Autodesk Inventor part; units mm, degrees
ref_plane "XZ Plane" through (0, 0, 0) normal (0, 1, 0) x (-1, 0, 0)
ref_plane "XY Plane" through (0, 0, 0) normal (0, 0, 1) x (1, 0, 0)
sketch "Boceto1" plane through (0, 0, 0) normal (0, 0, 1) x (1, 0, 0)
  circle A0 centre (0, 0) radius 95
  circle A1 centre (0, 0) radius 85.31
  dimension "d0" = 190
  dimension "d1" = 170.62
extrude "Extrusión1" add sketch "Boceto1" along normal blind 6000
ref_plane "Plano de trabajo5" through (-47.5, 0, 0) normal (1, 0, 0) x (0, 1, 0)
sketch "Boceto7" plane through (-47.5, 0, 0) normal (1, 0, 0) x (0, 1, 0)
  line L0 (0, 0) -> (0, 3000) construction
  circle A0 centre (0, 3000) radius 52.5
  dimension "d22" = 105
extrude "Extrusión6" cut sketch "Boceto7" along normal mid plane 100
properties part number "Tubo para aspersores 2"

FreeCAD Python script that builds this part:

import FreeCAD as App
import Part
import Sketcher

V = App.Vector

doc = App.newDocument("Part")
body = doc.addObject("PartDesign::Body", "Body")

sketch1 = body.newObject("Sketcher::SketchObject", "Sketch")
sketch1.AttachmentSupport = (doc.getObject("XY_Plane"), [""])
sketch1.MapMode = "FlatFace"
sketch1.addGeometry([
    Part.Circle(V(0, 0, 0), V(0, 0, 1), 95),
    Part.Circle(V(0, 0, 0), V(0, 0, 1), 85.31),
], False)
sketch1.addConstraint([
    Sketcher.Constraint("Coincident", 0, 3, -1, 1),
    Sketcher.Constraint("Coincident", 1, 3, -1, 1),
    Sketcher.Constraint("Diameter", 0, 190.0),
    Sketcher.Constraint("Diameter", 1, 170.62),
])
pad1 = body.newObject("PartDesign::Pad", "Pad")
pad1.Profile = sketch1
pad1.Length = 6000

sketch2 = body.newObject("Sketcher::SketchObject", "Sketch001")
sketch2.AttachmentSupport = (doc.getObject("YZ_Plane"), [""])
sketch2.MapMode = "FlatFace"
sketch2.AttachmentOffset = App.Placement(V(0, 0, -47.5), App.Rotation())
sketch2.addGeometry(Part.Circle(V(0, 3000, 0), V(0, 0, 1), 52.5), False)
sketch2.addConstraint([
    Sketcher.Constraint("PointOnObject", 0, 3, -2),
    Sketcher.Constraint("Diameter", 0, 105.0),
    Sketcher.Constraint("DistanceY", -1, 1, 0, 3, 3000.0),
])
pocket1 = body.newObject("PartDesign::Pocket", "Pocket")
pocket1.Profile = sketch2
pocket1.Length = 100
pocket1.Midplane = True

doc.recompute()
